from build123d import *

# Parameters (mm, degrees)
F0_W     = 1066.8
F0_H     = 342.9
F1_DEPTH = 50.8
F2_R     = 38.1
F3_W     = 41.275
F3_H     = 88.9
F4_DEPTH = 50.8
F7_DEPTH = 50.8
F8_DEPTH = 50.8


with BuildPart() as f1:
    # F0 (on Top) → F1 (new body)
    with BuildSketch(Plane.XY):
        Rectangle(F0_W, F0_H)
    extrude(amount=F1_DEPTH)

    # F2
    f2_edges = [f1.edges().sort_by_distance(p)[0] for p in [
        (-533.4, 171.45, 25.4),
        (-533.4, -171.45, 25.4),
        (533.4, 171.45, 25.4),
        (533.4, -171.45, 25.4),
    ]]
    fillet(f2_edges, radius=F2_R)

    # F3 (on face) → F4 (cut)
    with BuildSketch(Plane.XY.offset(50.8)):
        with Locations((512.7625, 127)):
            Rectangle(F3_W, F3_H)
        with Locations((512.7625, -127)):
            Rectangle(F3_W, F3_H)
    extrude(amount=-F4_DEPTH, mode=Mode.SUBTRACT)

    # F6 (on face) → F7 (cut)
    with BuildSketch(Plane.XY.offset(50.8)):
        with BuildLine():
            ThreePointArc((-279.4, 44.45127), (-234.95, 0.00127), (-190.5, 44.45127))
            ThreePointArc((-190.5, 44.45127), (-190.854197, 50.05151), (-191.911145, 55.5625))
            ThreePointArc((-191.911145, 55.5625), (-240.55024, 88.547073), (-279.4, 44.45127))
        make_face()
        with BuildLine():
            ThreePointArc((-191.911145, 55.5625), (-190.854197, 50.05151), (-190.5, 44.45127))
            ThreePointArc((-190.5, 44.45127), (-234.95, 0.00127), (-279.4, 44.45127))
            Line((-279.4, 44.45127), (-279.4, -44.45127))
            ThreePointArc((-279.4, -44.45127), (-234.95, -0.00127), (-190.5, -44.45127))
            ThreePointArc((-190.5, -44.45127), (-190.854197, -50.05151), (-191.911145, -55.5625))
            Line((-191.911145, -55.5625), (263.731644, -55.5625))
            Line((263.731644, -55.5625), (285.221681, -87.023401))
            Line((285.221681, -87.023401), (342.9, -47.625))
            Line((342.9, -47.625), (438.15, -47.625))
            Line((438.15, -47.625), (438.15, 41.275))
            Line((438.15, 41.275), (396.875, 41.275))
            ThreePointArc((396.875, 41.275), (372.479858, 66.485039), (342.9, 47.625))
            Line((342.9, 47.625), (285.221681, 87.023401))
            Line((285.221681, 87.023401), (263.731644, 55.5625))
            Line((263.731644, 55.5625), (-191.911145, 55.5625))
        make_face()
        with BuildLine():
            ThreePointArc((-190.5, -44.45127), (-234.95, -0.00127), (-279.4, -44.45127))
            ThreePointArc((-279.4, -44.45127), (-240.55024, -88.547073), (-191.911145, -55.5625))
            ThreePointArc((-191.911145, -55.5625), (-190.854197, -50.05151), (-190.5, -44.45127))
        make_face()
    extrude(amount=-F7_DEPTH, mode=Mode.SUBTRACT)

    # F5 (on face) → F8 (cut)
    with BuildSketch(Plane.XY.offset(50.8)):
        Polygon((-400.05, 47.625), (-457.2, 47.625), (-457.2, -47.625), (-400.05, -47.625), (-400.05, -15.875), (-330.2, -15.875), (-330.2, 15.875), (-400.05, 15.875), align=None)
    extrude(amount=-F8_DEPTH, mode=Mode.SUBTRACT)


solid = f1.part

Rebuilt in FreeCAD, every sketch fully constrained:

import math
import FreeCAD as App
import Part
import Sketcher

V = App.Vector
Q = App.Units.Quantity


def edges_at(feature, points):
    """Names of the edges that pass closest to the given points."""
    edges = feature.Shape.Edges
    near = lambda p: min(range(len(edges)), key=lambda i: edges[i].distToShape(Part.Vertex(*p))[0])
    return sorted({f"Edge{near(p) + 1}" for p in points})

doc = App.newDocument("Part")
body = doc.addObject("PartDesign::Body", "Body")

sketch1 = body.newObject("Sketcher::SketchObject", "Sketch")
sketch1.AttachmentSupport = (doc.getObject("XY_Plane"), [""])
sketch1.MapMode = "FlatFace"
sketch1.addGeometry(Part.LineSegment(V(-533, 171, 0), V(-533, -171, 0)), False)
sketch1.addGeometry(Part.LineSegment(V(-533, -171, 0), V(533, -171, 0)), False)
sketch1.addGeometry(Part.LineSegment(V(533, -171, 0), V(533, 171, 0)), False)
sketch1.addGeometry(Part.LineSegment(V(533, 171, 0), V(-533, 171, 0)), False)
sketch1.addConstraint(Sketcher.Constraint("Coincident", 0, 2, 1, 1))
sketch1.addConstraint(Sketcher.Constraint("Coincident", 1, 2, 2, 1))
sketch1.addConstraint(Sketcher.Constraint("Coincident", 2, 2, 3, 1))
sketch1.addConstraint(Sketcher.Constraint("Coincident", 3, 2, 0, 1))
sketch1.addConstraint(Sketcher.Constraint("Vertical", 0))
sketch1.addConstraint(Sketcher.Constraint("Horizontal", 1))
sketch1.addConstraint(Sketcher.Constraint("Vertical", 2))
sketch1.addConstraint(Sketcher.Constraint("Horizontal", 3))
sketch1.addConstraint(Sketcher.Constraint("Symmetric", 0, 2, 2, 2, -1, 1))
sketch1.addConstraint(Sketcher.Constraint("DistanceX", 1, 1, 1, 2, Q("42 in")))
sketch1.addConstraint(Sketcher.Constraint("DistanceY", 0, 2, 0, 1, Q("13.5 in")))
pad1 = body.newObject("PartDesign::Pad", "Pad")
pad1.Profile = sketch1
pad1.Length = Q("2 in")
doc.recompute()

fillet = body.newObject("PartDesign::Fillet", "Fillet")
fillet.Base = (pad1, edges_at(pad1, [
    (-533.4, 171.45, 25.4),
    (-533.4, -171.45, 25.4),
    (533.4, 171.45, 25.4),
    (533.4, -171.45, 25.4),
]))
fillet.Radius = Q("1.5 in")

sketch2 = body.newObject("Sketcher::SketchObject", "Sketch001")
sketch2.AttachmentSupport = (doc.getObject("XY_Plane"), [""])
sketch2.MapMode = "FlatFace"
sketch2.AttachmentOffset = App.Placement(V(0, 0, 2 * 25.4), App.Rotation())
sketch2.addGeometry(Part.LineSegment(V(492, 171, 0), V(492, 83, 0)), False)
sketch2.addGeometry(Part.LineSegment(V(492, 83, 0), V(533, 83, 0)), False)
sketch2.addGeometry(Part.LineSegment(V(533, 83, 0), V(533, 171, 0)), False)
sketch2.addGeometry(Part.LineSegment(V(533, 171, 0), V(492, 171, 0)), False)
sketch2.addGeometry(Part.LineSegment(V(492, -83, 0), V(492, -171, 0)), False)
sketch2.addGeometry(Part.LineSegment(V(492, -171, 0), V(533, -171, 0)), False)
sketch2.addGeometry(Part.LineSegment(V(533, -171, 0), V(533, -83, 0)), False)
sketch2.addGeometry(Part.LineSegment(V(533, -83, 0), V(492, -83, 0)), False)
sketch2.addConstraint(Sketcher.Constraint("Coincident", 0, 2, 1, 1))
sketch2.addConstraint(Sketcher.Constraint("Coincident", 1, 2, 2, 1))
sketch2.addConstraint(Sketcher.Constraint("Coincident", 2, 2, 3, 1))
sketch2.addConstraint(Sketcher.Constraint("Coincident", 3, 2, 0, 1))
sketch2.addConstraint(Sketcher.Constraint("Coincident", 4, 2, 5, 1))
sketch2.addConstraint(Sketcher.Constraint("Coincident", 5, 2, 6, 1))
sketch2.addConstraint(Sketcher.Constraint("Coincident", 6, 2, 7, 1))
sketch2.addConstraint(Sketcher.Constraint("Coincident", 7, 2, 4, 1))
sketch2.addConstraint(Sketcher.Constraint("Vertical", 0))
sketch2.addConstraint(Sketcher.Constraint("Horizontal", 1))
sketch2.addConstraint(Sketcher.Constraint("Vertical", 2))
sketch2.addConstraint(Sketcher.Constraint("Horizontal", 3))
sketch2.addConstraint(Sketcher.Constraint("Vertical", 4))
sketch2.addConstraint(Sketcher.Constraint("Horizontal", 5))
sketch2.addConstraint(Sketcher.Constraint("Vertical", 6))
sketch2.addConstraint(Sketcher.Constraint("Horizontal", 7))
sketch2.addConstraint(Sketcher.Constraint("Symmetric", 3, 2, 4, 2, -1))
sketch2.addConstraint(Sketcher.Constraint("Symmetric", 1, 2, 6, 2, -1))
sketch2.addConstraint(Sketcher.Constraint("DistanceY", 0, 2, 0, 1, Q("3.5 in")))
sketch2.addConstraint(Sketcher.Constraint("DistanceX", -1, 1, 1, 2, Q("21 in")))
sketch2.addConstraint(Sketcher.Constraint("DistanceY", 4, 2, 0, 2, Q("10 in")))
sketch2.addConstraint(Sketcher.Constraint("DistanceX", 1, 1, 1, 2, Q("1.625 in")))
pocket1 = body.newObject("PartDesign::Pocket", "Pocket")
pocket1.Profile = sketch2
pocket1.Length = Q("2 in")

sketch3 = body.newObject("Sketcher::SketchObject", "Sketch002")
sketch3.AttachmentSupport = (doc.getObject("XY_Plane"), [""])
sketch3.MapMode = "FlatFace"
sketch3.AttachmentOffset = App.Placement(V(0, 0, 2 * 25.4), App.Rotation())
sketch3.addGeometry(Part.ArcOfCircle(Part.Circle(V(-235, 44, 0), V(0, 0, 1), 44), math.radians(14), math.radians(180)), False)
sketch3.addGeometry(Part.LineSegment(V(-279, 44, 0), V(-279, -44, 0)), False)
sketch3.addGeometry(Part.ArcOfCircle(Part.Circle(V(-235, -44, 0), V(0, 0, 1), 44), math.radians(180), math.radians(346)), False)
sketch3.addGeometry(Part.LineSegment(V(-192, -56, 0), V(264, -56, 0)), False)
sketch3.addGeometry(Part.LineSegment(V(264, -56, 0), V(285, -87, 0)), False)
sketch3.addGeometry(Part.LineSegment(V(285, -87, 0), V(343, -48, 0)), False)
sketch3.addGeometry(Part.LineSegment(V(343, -48, 0), V(438, -48, 0)), False)
sketch3.addGeometry(Part.LineSegment(V(438, -48, 0), V(438, 41, 0)), False)
sketch3.addGeometry(Part.LineSegment(V(438, 41, 0), V(397, 41, 0)), False)
sketch3.addGeometry(Part.ArcOfCircle(Part.Circle(V(369, 39, 0), V(0, 0, 1), 28), math.radians(5), math.radians(162)), False)
sketch3.addGeometry(Part.LineSegment(V(343, 48, 0), V(285, 87, 0)), False)
sketch3.addGeometry(Part.LineSegment(V(285, 87, 0), V(264, 56, 0)), False)
sketch3.addGeometry(Part.LineSegment(V(264, 56, 0), V(-192, 56, 0)), False)
sketch3.addConstraint(Sketcher.Constraint("Tangent", 0, 2, 1, 1))
sketch3.addConstraint(Sketcher.Constraint("Tangent", 1, 2, 2, 1))
sketch3.addConstraint(Sketcher.Constraint("Coincident", 2, 2, 3, 1))
sketch3.addConstraint(Sketcher.Constraint("Coincident", 3, 2, 4, 1))
sketch3.addConstraint(Sketcher.Constraint("Coincident", 4, 2, 5, 1))
sketch3.addConstraint(Sketcher.Constraint("Coincident", 5, 2, 6, 1))
sketch3.addConstraint(Sketcher.Constraint("Coincident", 6, 2, 7, 1))
sketch3.addConstraint(Sketcher.Constraint("Coincident", 7, 2, 8, 1))
sketch3.addConstraint(Sketcher.Constraint("Coincident", 8, 2, 9, 1))
sketch3.addConstraint(Sketcher.Constraint("Coincident", 9, 2, 10, 1))
sketch3.addConstraint(Sketcher.Constraint("Coincident", 10, 2, 11, 1))
sketch3.addConstraint(Sketcher.Constraint("Coincident", 11, 2, 12, 1))
sketch3.addConstraint(Sketcher.Constraint("Coincident", 12, 2, 0, 1))
sketch3.addConstraint(Sketcher.Constraint("Vertical", 1))
sketch3.addConstraint(Sketcher.Constraint("Horizontal", 3))
sketch3.addConstraint(Sketcher.Constraint("Horizontal", 6))
sketch3.addConstraint(Sketcher.Constraint("Vertical", 7))
sketch3.addConstraint(Sketcher.Constraint("Horizontal", 8))
sketch3.addConstraint(Sketcher.Constraint("Horizontal", 12))
sketch3.addConstraint(Sketcher.Constraint("Equal", 0, 2))
sketch3.addConstraint(Sketcher.Constraint("Symmetric", 5, 2, 9, 2, -1))
sketch3.addConstraint(Sketcher.Constraint("Symmetric", 4, 2, 10, 2, -1))
sketch3.addConstraint(Sketcher.Constraint("Symmetric", 3, 2, 11, 2, -1))
sketch3.addConstraint(Sketcher.Constraint("Perpendicular", 4, 5))
sketch3.addConstraint(Sketcher.Constraint("Vertical", 2, 2, 12, 2))
sketch3.addConstraint(Sketcher.Constraint("Radius", 0, Q("1.75 in")))
sketch3.addConstraint(Sketcher.Constraint("DistanceY", 7, 1, 7, 2, Q("3.5 in")))
sketch3.addConstraint(Sketcher.Constraint("DistanceX", 0, 2, -1, 1, Q("11 in")))
sketch3.addConstraint(Sketcher.Constraint("Distance", 4, Q("1.5 in")))
sketch3.addConstraint(Sketcher.Constraint("DistanceX", 6, 1, 6, 2, Q("3.75 in")))
sketch3.addConstraint(Sketcher.Constraint("DistanceX", -1, 1, 5, 2, Q("13.5 in")))
sketch3.addConstraint(Sketcher.Constraint("Distance", 5, Q("2.75 in")))
sketch3.addConstraint(Sketcher.Constraint("DistanceX", 8, 2, 8, 1, Q("1.625 in")))
sketch3.addConstraint(Sketcher.Constraint("DistanceY", 8, 2, 9, 2, Q("0.25 in")))
sketch3.addConstraint(Sketcher.Constraint("DistanceY", 1, 2, 1, 1, Q("3.5001 in")))
sketch3.addConstraint(Sketcher.Constraint("DistanceY", 2, 2, -1, 1, Q("2.1875 in")))
sketch3.addConstraint(Sketcher.Constraint("Radius", 9, Q("27.734004 mm")))
pocket2 = body.newObject("PartDesign::Pocket", "Pocket001")
pocket2.Profile = sketch3
pocket2.Length = Q("2 in")

sketch4 = body.newObject("Sketcher::SketchObject", "Sketch003")
sketch4.AttachmentSupport = (doc.getObject("XY_Plane"), [""])
sketch4.MapMode = "FlatFace"
sketch4.AttachmentOffset = App.Placement(V(0, 0, 2 * 25.4), App.Rotation())
sketch4.addGeometry(Part.LineSegment(V(-400, 48, 0), V(-457, 48, 0)), False)
sketch4.addGeometry(Part.LineSegment(V(-457, 48, 0), V(-457, -48, 0)), False)
sketch4.addGeometry(Part.LineSegment(V(-457, -48, 0), V(-400, -48, 0)), False)
sketch4.addGeometry(Part.LineSegment(V(-400, -48, 0), V(-400, -16, 0)), False)
sketch4.addGeometry(Part.LineSegment(V(-400, -16, 0), V(-330, -16, 0)), False)
sketch4.addGeometry(Part.LineSegment(V(-330, -16, 0), V(-330, 16, 0)), False)
sketch4.addGeometry(Part.LineSegment(V(-330, 16, 0), V(-400, 16, 0)), False)
sketch4.addGeometry(Part.LineSegment(V(-400, 16, 0), V(-400, 48, 0)), False)
sketch4.addConstraint(Sketcher.Constraint("Coincident", 0, 2, 1, 1))
sketch4.addConstraint(Sketcher.Constraint("Coincident", 1, 2, 2, 1))
sketch4.addConstraint(Sketcher.Constraint("Coincident", 2, 2, 3, 1))
sketch4.addConstraint(Sketcher.Constraint("Coincident", 3, 2, 4, 1))
sketch4.addConstraint(Sketcher.Constraint("Coincident", 4, 2, 5, 1))
sketch4.addConstraint(Sketcher.Constraint("Coincident", 5, 2, 6, 1))
sketch4.addConstraint(Sketcher.Constraint("Coincident", 6, 2, 7, 1))
sketch4.addConstraint(Sketcher.Constraint("Coincident", 7, 2, 0, 1))
sketch4.addConstraint(Sketcher.Constraint("Horizontal", 0))
sketch4.addConstraint(Sketcher.Constraint("Vertical", 1))
sketch4.addConstraint(Sketcher.Constraint("Horizontal", 2))
sketch4.addConstraint(Sketcher.Constraint("Vertical", 3))
sketch4.addConstraint(Sketcher.Constraint("Horizontal", 4))
sketch4.addConstraint(Sketcher.Constraint("Vertical", 5))
sketch4.addConstraint(Sketcher.Constraint("Horizontal", 6))
sketch4.addConstraint(Sketcher.Constraint("Vertical", 7))
sketch4.addConstraint(Sketcher.Constraint("Symmetric", 3, 2, 6, 2, -1))
sketch4.addConstraint(Sketcher.Constraint("Equal", 3, 5))
sketch4.addConstraint(Sketcher.Constraint("Equal", 5, 7))
sketch4.addConstraint(Sketcher.Constraint("DistanceX", 0, 2, -1, 1, Q("18 in")))
sketch4.addConstraint(Sketcher.Constraint("DistanceX", 4, 2, -1, 1, Q("13 in")))
sketch4.addConstraint(Sketcher.Constraint("DistanceX", 0, 2, 0, 1, Q("2.25 in")))
sketch4.addConstraint(Sketcher.Constraint("DistanceY", 1, 2, 1, 1, Q("3.75 in")))
pocket3 = body.newObject("PartDesign::Pocket", "Pocket002")
pocket3.Profile = sketch4
pocket3.Length = Q("2 in")

doc.recompute()
